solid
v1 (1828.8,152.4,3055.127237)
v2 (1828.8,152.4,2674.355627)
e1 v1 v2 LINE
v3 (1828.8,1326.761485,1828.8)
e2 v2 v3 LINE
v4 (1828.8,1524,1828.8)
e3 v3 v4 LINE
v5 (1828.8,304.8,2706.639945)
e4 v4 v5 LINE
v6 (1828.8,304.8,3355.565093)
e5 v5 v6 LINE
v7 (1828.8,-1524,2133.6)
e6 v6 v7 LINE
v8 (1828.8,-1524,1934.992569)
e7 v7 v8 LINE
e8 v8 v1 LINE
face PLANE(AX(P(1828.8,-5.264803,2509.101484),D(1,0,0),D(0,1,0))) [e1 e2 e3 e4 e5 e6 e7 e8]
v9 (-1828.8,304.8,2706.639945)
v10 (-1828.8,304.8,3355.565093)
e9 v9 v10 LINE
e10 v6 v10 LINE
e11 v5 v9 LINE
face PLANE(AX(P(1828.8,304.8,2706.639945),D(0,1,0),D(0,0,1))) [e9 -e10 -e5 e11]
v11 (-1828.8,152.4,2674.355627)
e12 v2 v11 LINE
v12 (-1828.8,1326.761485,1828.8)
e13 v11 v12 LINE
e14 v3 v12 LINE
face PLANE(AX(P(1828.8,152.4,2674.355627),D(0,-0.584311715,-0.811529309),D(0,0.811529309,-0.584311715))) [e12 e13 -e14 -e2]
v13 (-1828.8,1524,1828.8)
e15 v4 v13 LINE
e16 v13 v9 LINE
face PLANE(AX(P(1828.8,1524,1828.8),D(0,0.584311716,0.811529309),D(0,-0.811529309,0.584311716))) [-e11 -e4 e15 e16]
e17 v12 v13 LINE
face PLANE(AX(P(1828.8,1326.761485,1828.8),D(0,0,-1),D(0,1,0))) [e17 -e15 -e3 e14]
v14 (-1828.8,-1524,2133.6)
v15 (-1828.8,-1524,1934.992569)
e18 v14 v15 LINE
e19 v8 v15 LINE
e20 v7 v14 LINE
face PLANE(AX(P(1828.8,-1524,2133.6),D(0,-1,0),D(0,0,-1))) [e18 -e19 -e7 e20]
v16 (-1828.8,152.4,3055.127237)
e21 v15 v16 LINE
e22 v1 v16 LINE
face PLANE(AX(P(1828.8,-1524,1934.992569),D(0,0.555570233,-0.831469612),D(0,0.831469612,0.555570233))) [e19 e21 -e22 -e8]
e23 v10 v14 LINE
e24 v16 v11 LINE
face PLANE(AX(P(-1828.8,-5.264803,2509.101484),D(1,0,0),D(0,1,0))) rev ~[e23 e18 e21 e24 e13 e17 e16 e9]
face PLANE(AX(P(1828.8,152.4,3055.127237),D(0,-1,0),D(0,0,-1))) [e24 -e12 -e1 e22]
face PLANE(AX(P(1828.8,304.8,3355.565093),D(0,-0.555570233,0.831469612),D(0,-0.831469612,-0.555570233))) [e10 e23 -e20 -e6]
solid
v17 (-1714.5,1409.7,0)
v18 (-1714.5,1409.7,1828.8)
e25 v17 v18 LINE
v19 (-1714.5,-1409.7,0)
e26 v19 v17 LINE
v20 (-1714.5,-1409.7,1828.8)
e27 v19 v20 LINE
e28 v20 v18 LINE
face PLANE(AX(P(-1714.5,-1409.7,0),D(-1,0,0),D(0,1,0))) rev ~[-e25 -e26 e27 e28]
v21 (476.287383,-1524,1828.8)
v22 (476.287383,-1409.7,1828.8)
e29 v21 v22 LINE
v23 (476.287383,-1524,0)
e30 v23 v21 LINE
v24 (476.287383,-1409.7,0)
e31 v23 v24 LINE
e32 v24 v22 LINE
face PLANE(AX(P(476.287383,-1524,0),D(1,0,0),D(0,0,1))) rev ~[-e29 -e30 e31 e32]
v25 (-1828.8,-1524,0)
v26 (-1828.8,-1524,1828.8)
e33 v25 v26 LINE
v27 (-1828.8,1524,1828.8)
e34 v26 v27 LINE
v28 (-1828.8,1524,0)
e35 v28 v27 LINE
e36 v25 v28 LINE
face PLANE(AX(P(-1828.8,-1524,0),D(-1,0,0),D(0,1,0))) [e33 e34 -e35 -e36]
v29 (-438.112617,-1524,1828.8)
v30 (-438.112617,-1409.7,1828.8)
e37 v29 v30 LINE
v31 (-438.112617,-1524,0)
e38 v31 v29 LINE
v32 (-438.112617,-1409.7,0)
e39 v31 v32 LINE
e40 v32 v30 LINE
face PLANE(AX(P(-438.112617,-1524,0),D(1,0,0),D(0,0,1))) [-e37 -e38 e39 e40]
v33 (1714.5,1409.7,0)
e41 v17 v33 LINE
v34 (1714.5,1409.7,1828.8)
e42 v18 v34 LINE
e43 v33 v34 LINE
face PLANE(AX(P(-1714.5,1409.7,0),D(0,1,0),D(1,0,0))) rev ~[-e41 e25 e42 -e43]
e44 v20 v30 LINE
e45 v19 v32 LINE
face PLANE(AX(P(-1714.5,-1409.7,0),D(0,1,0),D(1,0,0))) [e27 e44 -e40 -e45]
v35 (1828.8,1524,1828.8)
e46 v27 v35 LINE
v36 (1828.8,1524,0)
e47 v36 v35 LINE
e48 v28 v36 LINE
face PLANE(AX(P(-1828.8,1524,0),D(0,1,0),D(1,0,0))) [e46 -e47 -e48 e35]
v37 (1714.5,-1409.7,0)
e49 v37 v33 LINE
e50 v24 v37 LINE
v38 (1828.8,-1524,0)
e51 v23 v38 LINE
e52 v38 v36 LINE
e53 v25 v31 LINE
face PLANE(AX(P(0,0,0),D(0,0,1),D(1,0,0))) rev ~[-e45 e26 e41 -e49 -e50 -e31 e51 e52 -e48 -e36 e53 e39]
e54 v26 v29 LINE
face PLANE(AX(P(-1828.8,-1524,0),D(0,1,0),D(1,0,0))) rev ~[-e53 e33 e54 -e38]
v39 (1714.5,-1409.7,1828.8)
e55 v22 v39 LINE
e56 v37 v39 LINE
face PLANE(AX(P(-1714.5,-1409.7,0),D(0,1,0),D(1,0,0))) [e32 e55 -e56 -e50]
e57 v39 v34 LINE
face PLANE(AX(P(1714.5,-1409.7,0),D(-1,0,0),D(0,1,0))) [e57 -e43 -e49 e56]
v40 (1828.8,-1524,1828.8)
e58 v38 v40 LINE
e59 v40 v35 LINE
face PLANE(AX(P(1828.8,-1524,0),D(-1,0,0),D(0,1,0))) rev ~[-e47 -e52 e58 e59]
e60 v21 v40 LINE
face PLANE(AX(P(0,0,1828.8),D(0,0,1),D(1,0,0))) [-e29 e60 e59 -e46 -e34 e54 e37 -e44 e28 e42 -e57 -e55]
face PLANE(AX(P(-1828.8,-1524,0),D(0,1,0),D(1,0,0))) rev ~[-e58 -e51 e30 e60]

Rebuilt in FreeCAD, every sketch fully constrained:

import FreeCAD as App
import Part
import Sketcher
from FreeCAD import Vector
Q = App.Units.Quantity


def add_polygon(sketch, points):
    """Adds a closed chain of lines whose ends are joined by coincident constraints."""
    first, n = sketch.GeometryCount, len(points)
    for a, b in zip(points, points[1:] + points[:1]):
        sketch.addGeometry(Part.LineSegment(App.Vector(*a, 0), App.Vector(*b, 0)), False)
    for i in range(n):
        sketch.addConstraint(Sketcher.Constraint("Coincident", first + i, 2, first + (i + 1) % n, 1))

doc = App.newDocument("Part")
params = doc.addObject("Spreadsheet::Sheet", "Params")
for row, (alias, value) in enumerate([
    ("sketch1_width", "144 in"),
    ("sketch1_width2", "135 in"),
    ("sketch1_height", "120 in"),
    ("sketch1_height2", "111 in"),
    ("pad1_length", "72 in"),
    ("sketch2_width", "36 in"),
    ("sketch2_height", "72 in"),
    ("pocket1_length", "4.5 in"),
    ("pad2_length", "144 in"),
], start=1):
    params.set(f"A{row}", alias)
    params.set(f"B{row}", "=" + value)
    params.setAlias(f"B{row}", alias)

body = doc.addObject("PartDesign::Body", "Body")

sketch1 = doc.addObject("Sketcher::SketchObject", "Sketch")
body.addObject(sketch1)
sketch1.AttachmentSupport = (doc.XY_Plane, [""])
sketch1.MapMode = "FlatFace"
add_polygon(sketch1, [(-1829, 1524), (-1829, -1524), (1829, -1524), (1829, 1524)])
add_polygon(sketch1, [(1714, -1410), (-1714, -1410), (-1714, 1410), (1714, 1410)])
sketch1.addConstraint([
    Sketcher.Constraint("Vertical", 0),
    Sketcher.Constraint("Horizontal", 1),
    Sketcher.Constraint("Vertical", 2),
    Sketcher.Constraint("Horizontal", 3),
    Sketcher.Constraint("Horizontal", 4),
    Sketcher.Constraint("Vertical", 5),
    Sketcher.Constraint("Horizontal", 6),
    Sketcher.Constraint("Vertical", 7),
    Sketcher.Constraint("Symmetric", 0, 2, 2, 2, -1, 1),
    Sketcher.Constraint("Symmetric", 4, 2, 6, 2, -1, 1),
    Sketcher.Constraint("DistanceX", 1, 1, 1, 2, Q("144 in")),
    Sketcher.Constraint("DistanceX", 4, 2, 4, 1, Q("135 in")),
    Sketcher.Constraint("DistanceY", 0, 2, 0, 1, Q("120 in")),
    Sketcher.Constraint("DistanceY", 5, 1, 5, 2, Q("111 in")),
])
sketch1.setExpression("Constraints[18]", "Params.sketch1_width")
sketch1.setExpression("Constraints[19]", "Params.sketch1_width2")
sketch1.setExpression("Constraints[20]", "Params.sketch1_height")
sketch1.setExpression("Constraints[21]", "Params.sketch1_height2")
pad1 = doc.addObject("PartDesign::Pad", "Pad")
body.addObject(pad1)
pad1.Profile = sketch1
pad1.setExpression("Length", "Params.pad1_length")

sketch2 = doc.addObject("Sketcher::SketchObject", "Sketch001")
body.addObject(sketch2)
sketch2.AttachmentSupport = (doc.XZ_Plane, [""])
sketch2.MapMode = "FlatFace"
sketch2.AttachmentOffset = App.Placement(Vector(0, 0, 60 * 25.4), App.Rotation())
add_polygon(sketch2, [(-438, 1829), (-438, 0), (476, 0), (476, 1829)])
sketch2.addConstraint([
    Sketcher.Constraint("Vertical", 0),
    Sketcher.Constraint("Horizontal", 1),
    Sketcher.Constraint("Vertical", 2),
    Sketcher.Constraint("Horizontal", 3),
    Sketcher.Constraint("PointOnObject", 0, 2, -1),
    Sketcher.Constraint("DistanceX", 1, 1, 1, 2, Q("36 in")),
    Sketcher.Constraint("DistanceY", 0, 2, 0, 1, Q("72 in")),
    Sketcher.Constraint("DistanceX", 0, 2, -1, 1, 438.112617),
])
sketch2.setExpression("Constraints[9]", "Params.sketch2_width")
sketch2.setExpression("Constraints[10]", "Params.sketch2_height")
pocket1 = doc.addObject("PartDesign::Pocket", "Pocket")
body.addObject(pocket1)
pocket1.Profile = sketch2
pocket1.setExpression("Length", "Params.pocket1_length")
body2 = doc.addObject("PartDesign::Body", "Body001")

sketch3 = doc.addObject("Sketcher::SketchObject", "Sketch002")
body2.addObject(sketch3)
sketch3.AttachmentSupport = (doc.getObject("YZ_Plane001"), [""])
sketch3.MapMode = "FlatFace"
sketch3.AttachmentOffset = App.Placement(Vector(0, 0, 72 * 25.4), App.Rotation())
add_polygon(sketch3, [(1524, 1829), (305, 2707), (305, 3356), (-1524, 2134), (-1524, 1935), (152, 3055), (152, 2674), (1327, 1829)])
sketch3.addConstraint([
    Sketcher.Constraint("Vertical", 1),
    Sketcher.Constraint("Vertical", 3),
    Sketcher.Constraint("Vertical", 5),
    Sketcher.Constraint("Horizontal", 7),
    Sketcher.Constraint("Parallel", 2, 4),
    Sketcher.Constraint("Parallel", 0, 6),
    Sketcher.Constraint("DistanceX", -1, 1, 0, 2, Q("12 in")),
    Sketcher.Constraint("DistanceX", 2, 2, -1, 1, Q("60 in")),
    Sketcher.Constraint("DistanceY", -1, 1, 2, 2, Q("84 in")),
    Sketcher.Constraint("DistanceX", -1, 1, 4, 2, Q("6 in")),
    Sketcher.Constraint("DistanceY", -1, 1, 6, 2, Q("72 in")),
    Sketcher.Constraint("DistanceX", -1, 1, 7, 2, Q("60 in")),
    Sketcher.Constraint("Angle", 2, Q("-146.25 deg")),
    Sketcher.Constraint("DistanceY", -1, 1, 4, 2, Q("120.2805999 in")),
    Sketcher.Constraint("DistanceY", 1, 1, 1, 2, 648.925148),
    Sketcher.Constraint("DistanceY", 5, 2, 5, 1, 380.77161),
])
pad2 = doc.addObject("PartDesign::Pad", "Pad001")
body2.addObject(pad2)
pad2.Profile = sketch3
pad2.setExpression("Length", "Params.pad2_length")
pad2.Reversed = True

doc.recompute()
